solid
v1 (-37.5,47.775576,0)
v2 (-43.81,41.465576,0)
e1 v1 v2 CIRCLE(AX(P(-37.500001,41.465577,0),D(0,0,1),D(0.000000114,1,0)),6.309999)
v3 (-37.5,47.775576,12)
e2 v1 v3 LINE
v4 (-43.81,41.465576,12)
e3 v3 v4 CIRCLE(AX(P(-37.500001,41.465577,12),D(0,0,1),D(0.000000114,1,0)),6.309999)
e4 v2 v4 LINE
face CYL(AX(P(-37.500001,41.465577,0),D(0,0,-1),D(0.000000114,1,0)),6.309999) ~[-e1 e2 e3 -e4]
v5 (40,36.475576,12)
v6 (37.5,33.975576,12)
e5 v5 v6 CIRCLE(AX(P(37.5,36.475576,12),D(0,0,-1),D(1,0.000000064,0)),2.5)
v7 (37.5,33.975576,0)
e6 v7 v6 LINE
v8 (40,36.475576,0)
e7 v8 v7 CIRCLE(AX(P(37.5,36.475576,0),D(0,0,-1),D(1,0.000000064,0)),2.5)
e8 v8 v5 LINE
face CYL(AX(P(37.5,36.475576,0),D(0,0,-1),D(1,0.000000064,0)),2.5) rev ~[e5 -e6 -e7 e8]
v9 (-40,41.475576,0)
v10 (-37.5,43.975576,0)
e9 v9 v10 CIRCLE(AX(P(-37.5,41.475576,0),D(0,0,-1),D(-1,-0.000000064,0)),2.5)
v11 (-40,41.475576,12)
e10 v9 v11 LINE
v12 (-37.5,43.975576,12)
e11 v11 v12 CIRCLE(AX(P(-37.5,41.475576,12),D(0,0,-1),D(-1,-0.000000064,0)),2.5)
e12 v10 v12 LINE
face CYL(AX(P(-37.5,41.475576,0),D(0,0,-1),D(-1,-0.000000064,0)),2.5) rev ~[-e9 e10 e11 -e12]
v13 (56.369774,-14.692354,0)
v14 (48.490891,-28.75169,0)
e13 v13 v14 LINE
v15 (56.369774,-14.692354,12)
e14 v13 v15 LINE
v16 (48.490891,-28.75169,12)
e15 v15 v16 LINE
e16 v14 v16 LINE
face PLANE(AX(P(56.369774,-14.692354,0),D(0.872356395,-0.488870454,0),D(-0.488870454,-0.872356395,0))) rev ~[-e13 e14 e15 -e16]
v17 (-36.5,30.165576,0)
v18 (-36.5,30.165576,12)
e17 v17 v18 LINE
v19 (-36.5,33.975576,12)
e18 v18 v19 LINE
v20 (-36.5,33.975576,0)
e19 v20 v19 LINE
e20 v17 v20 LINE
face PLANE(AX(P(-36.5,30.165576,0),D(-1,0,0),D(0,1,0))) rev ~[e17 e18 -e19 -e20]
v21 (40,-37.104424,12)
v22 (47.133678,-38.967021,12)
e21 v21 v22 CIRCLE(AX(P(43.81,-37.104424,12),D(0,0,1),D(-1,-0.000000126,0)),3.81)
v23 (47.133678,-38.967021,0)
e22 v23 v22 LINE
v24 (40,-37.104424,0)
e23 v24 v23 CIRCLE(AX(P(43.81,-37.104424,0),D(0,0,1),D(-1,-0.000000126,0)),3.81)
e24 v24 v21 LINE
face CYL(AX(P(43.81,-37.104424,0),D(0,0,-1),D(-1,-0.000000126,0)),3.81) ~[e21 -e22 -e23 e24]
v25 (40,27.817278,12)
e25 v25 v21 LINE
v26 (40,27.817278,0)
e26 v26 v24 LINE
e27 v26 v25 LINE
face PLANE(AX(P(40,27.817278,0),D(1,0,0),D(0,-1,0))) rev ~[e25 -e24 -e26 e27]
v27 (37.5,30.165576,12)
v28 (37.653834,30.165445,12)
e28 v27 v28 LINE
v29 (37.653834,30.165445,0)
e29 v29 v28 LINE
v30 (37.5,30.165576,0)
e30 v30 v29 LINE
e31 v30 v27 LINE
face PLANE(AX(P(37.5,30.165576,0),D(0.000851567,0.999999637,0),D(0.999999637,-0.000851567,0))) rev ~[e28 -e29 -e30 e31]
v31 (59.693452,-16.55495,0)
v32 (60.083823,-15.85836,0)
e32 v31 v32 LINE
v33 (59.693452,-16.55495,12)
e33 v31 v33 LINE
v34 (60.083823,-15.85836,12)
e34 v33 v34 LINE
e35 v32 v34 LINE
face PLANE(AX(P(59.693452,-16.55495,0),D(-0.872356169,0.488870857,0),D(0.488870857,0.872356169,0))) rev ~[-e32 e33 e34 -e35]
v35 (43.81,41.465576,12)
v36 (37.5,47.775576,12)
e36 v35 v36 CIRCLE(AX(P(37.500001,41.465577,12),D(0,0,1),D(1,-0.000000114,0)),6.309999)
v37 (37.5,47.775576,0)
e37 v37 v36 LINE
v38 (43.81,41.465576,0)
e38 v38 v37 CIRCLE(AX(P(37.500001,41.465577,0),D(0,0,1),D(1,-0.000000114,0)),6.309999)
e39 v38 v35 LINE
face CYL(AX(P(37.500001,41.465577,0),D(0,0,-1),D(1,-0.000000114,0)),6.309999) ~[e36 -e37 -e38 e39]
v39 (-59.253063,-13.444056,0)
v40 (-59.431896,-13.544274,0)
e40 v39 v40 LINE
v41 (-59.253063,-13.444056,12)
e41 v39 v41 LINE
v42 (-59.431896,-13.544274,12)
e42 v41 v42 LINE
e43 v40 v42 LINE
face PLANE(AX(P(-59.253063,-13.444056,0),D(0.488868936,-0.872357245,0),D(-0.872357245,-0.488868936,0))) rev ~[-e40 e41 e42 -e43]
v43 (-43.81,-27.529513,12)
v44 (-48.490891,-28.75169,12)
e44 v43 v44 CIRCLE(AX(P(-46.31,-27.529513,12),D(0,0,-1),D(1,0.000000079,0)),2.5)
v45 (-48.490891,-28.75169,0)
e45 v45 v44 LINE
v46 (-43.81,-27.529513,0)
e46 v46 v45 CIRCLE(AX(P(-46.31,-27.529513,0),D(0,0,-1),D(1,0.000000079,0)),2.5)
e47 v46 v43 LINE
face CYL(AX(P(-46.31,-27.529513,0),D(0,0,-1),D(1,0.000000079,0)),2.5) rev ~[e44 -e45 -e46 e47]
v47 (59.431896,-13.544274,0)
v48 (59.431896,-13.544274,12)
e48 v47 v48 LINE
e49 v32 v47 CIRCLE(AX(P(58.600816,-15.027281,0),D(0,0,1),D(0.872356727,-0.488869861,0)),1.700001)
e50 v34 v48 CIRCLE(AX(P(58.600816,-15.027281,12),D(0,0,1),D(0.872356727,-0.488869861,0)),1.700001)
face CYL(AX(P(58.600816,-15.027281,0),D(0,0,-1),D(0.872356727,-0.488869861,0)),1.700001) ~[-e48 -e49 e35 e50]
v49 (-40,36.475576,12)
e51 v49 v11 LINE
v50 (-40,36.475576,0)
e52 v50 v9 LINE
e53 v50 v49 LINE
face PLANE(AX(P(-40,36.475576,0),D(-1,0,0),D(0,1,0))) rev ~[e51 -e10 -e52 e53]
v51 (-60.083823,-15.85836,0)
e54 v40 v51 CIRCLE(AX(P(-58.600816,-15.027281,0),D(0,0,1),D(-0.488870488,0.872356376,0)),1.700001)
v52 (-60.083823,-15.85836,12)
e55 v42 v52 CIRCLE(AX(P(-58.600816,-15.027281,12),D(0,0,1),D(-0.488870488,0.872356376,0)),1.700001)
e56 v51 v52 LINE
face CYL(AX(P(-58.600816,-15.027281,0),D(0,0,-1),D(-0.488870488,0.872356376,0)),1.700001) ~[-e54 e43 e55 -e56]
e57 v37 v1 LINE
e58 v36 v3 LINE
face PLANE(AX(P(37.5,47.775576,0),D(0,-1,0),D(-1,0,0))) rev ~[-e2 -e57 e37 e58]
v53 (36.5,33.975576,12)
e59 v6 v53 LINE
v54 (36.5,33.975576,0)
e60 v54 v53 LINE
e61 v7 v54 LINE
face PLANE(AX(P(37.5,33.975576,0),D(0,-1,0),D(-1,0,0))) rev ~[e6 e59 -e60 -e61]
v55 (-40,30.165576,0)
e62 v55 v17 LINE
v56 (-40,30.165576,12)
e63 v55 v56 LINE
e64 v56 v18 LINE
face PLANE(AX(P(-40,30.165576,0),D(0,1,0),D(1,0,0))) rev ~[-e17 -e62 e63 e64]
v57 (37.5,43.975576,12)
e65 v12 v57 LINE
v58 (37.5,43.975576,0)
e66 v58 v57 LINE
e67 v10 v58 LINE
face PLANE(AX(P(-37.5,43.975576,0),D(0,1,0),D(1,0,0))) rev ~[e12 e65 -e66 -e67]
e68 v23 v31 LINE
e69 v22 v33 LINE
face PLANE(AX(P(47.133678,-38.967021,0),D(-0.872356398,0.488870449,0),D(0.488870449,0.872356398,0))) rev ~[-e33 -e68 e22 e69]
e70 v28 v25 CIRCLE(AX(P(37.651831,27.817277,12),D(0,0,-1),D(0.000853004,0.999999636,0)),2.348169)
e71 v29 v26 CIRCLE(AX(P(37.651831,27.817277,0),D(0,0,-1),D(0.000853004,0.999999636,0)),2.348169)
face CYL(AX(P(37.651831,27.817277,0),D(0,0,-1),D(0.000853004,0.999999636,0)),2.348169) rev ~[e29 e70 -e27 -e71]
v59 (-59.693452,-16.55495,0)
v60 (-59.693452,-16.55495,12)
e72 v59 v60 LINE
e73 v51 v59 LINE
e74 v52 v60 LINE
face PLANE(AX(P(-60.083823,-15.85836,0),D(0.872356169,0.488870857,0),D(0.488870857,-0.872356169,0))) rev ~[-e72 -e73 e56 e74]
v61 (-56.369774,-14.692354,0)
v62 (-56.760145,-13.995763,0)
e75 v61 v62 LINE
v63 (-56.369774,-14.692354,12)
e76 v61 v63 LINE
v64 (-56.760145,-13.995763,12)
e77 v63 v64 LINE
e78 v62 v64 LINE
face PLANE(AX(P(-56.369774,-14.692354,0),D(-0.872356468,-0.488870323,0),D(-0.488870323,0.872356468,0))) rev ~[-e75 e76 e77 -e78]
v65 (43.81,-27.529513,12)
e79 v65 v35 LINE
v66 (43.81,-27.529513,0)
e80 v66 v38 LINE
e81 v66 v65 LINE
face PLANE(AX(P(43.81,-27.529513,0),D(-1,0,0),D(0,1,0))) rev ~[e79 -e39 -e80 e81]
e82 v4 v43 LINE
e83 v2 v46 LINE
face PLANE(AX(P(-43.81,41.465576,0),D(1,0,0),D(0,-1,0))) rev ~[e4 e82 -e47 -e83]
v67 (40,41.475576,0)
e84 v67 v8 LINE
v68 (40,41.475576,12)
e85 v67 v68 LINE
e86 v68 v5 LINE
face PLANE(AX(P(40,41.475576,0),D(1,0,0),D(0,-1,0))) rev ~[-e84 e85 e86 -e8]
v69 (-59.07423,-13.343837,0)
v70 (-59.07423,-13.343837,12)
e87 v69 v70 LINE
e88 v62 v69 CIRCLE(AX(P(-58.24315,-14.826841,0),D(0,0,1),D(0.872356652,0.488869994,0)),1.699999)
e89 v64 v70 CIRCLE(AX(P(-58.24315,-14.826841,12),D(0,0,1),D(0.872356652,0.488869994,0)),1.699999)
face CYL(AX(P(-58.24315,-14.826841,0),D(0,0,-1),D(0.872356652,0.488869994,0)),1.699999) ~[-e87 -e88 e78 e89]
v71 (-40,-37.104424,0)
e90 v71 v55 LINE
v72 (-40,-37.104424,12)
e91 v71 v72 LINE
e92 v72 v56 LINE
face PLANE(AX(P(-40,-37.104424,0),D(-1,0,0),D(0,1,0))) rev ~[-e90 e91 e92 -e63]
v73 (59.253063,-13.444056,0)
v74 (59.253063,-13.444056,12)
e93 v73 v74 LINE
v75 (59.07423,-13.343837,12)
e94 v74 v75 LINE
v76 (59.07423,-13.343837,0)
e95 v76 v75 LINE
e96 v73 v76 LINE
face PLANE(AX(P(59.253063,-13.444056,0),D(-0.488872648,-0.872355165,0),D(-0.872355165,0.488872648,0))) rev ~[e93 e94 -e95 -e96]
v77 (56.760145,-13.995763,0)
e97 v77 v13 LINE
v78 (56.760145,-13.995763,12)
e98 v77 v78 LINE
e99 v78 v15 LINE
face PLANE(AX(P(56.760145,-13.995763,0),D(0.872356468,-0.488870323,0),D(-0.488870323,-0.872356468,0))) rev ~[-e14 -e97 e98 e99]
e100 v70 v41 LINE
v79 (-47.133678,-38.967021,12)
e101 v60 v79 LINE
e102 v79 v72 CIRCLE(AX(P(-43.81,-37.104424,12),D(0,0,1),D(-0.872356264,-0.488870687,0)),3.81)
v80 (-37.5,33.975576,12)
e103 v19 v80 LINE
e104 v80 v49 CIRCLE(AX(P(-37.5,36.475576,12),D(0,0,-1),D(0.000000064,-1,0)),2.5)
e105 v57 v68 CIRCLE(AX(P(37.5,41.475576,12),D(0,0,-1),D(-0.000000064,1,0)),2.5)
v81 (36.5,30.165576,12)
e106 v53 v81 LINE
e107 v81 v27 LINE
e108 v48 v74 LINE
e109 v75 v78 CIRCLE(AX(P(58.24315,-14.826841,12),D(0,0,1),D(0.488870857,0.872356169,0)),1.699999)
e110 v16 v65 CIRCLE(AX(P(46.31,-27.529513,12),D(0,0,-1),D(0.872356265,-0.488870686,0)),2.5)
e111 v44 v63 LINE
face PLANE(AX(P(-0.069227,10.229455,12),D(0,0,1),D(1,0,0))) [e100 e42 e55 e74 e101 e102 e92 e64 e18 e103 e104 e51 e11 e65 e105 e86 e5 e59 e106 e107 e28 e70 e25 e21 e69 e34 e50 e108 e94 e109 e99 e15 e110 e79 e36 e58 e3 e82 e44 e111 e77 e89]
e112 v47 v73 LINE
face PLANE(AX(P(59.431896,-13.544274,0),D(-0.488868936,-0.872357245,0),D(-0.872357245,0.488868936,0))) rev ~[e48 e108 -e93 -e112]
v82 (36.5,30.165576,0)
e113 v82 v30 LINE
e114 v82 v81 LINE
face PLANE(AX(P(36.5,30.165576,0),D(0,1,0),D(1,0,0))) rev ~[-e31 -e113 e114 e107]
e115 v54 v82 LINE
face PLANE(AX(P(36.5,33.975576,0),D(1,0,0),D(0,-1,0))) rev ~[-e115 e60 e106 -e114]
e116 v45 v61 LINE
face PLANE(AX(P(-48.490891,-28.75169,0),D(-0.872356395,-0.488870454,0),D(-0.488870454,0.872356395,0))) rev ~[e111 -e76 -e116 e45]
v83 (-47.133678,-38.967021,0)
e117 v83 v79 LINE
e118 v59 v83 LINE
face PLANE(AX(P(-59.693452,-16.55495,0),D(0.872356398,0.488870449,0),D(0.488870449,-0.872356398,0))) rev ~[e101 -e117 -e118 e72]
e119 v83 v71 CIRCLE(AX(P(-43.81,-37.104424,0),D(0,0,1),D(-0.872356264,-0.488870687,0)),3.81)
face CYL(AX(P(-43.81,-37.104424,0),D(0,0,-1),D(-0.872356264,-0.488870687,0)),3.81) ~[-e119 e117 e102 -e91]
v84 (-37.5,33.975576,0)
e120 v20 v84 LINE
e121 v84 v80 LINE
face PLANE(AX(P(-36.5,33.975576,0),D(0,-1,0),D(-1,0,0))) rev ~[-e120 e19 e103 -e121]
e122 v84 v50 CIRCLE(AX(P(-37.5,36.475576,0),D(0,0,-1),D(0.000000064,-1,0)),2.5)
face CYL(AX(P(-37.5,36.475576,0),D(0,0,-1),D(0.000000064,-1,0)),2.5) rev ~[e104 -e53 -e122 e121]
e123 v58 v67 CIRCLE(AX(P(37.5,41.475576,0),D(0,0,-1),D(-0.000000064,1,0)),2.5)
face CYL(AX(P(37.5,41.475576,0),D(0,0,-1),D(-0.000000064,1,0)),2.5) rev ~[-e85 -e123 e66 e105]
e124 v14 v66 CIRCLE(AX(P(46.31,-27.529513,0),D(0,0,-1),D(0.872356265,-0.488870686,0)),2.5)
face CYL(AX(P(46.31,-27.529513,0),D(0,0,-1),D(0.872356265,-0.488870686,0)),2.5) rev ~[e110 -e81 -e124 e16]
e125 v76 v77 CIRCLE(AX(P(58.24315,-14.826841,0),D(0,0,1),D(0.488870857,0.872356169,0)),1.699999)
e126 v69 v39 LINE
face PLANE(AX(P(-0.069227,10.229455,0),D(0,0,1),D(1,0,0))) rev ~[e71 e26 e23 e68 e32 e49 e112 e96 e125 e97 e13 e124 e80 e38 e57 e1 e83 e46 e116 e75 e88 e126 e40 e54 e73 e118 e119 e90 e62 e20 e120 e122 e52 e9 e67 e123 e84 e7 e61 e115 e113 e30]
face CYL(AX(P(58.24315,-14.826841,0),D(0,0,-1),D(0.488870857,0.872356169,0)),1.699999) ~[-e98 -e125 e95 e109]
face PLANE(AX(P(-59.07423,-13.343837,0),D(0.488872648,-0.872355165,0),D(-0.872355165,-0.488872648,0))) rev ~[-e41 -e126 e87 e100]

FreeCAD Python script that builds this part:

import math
import FreeCAD as App
import Part
import Sketcher
from FreeCAD import Vector

doc = App.newDocument("Part")
body = doc.addObject("PartDesign::Body", "Body")

# Sketch on XY plane
sketch1 = body.newObject("Sketcher::SketchObject", "Sketch")
sketch1.AttachmentSupport = (doc.getObject("XY_Plane"), [""])
sketch1.MapMode = "FlatFace"
sketch1.addGeometry(Part.ArcOfCircle(Part.Circle(Vector(-37.5, 41.48, 0), Vector(0, 0, 1), 2.5), math.radians(90), math.radians(180)), False)
sketch1.addGeometry(Part.LineSegment(Vector(-37.5, 43.98, 0), Vector(37.5, 43.98, 0)), False)
sketch1.addGeometry(Part.ArcOfCircle(Part.Circle(Vector(37.5, 41.48, 0), Vector(0, 0, 1), 2.5), math.radians(0), math.radians(90)), False)
sketch1.addGeometry(Part.LineSegment(Vector(40, 41.48, 0), Vector(40, 36.48, 0)), False)
sketch1.addGeometry(Part.ArcOfCircle(Part.Circle(Vector(37.5, 36.48, 0), Vector(0, 0, 1), 2.5), math.radians(-90), math.radians(0)), False)
sketch1.addGeometry(Part.LineSegment(Vector(37.5, 33.98, 0), Vector(36.5, 33.98, 0)), False)
sketch1.addGeometry(Part.LineSegment(Vector(36.5, 33.98, 0), Vector(36.5, 30.17, 0)), False)
sketch1.addGeometry(Part.LineSegment(Vector(36.5, 30.17, 0), Vector(37.5, 30.17, 0)), False)
sketch1.addGeometry(Part.LineSegment(Vector(37.5, 30.17, 0), Vector(37.65, 30.17, 0)), False)
sketch1.addGeometry(Part.ArcOfCircle(Part.Circle(Vector(37.65, 27.82, 0), Vector(0, 0, 1), 2.35), math.radians(0), math.radians(90)), False)
sketch1.addGeometry(Part.LineSegment(Vector(40, 27.82, 0), Vector(40, -37.1, 0)), False)
sketch1.addGeometry(Part.ArcOfCircle(Part.Circle(Vector(43.81, -37.1, 0), Vector(0, 0, 1), 3.81), math.radians(-180), math.radians(-29)), False)
sketch1.addGeometry(Part.LineSegment(Vector(47.13, -38.97, 0), Vector(59.69, -16.55, 0)), False)
sketch1.addGeometry(Part.LineSegment(Vector(59.69, -16.55, 0), Vector(60.08, -15.86, 0)), False)
sketch1.addGeometry(Part.ArcOfCircle(Part.Circle(Vector(58.6, -15.03, 0), Vector(0, 0, 1), 1.7), math.radians(-29), math.radians(61)), False)
sketch1.addGeometry(Part.LineSegment(Vector(59.43, -13.54, 0), Vector(59.25, -13.44, 0)), False)
sketch1.addGeometry(Part.LineSegment(Vector(59.25, -13.44, 0), Vector(59.07, -13.34, 0)), False)
sketch1.addGeometry(Part.ArcOfCircle(Part.Circle(Vector(58.24, -14.83, 0), Vector(0, 0, 1), 1.7), math.radians(61), math.radians(151)), False)
sketch1.addGeometry(Part.LineSegment(Vector(56.76, -14, 0), Vector(56.37, -14.69, 0)), False)
sketch1.addGeometry(Part.LineSegment(Vector(56.37, -14.69, 0), Vector(48.49, -28.75, 0)), False)
sketch1.addGeometry(Part.ArcOfCircle(Part.Circle(Vector(46.31, -27.53, 0), Vector(0, 0, 1), 2.5), math.radians(180), math.radians(331)), False)
sketch1.addGeometry(Part.LineSegment(Vector(43.81, -27.53, 0), Vector(43.81, 41.47, 0)), False)
sketch1.addGeometry(Part.ArcOfCircle(Part.Circle(Vector(37.5, 41.47, 0), Vector(0, 0, 1), 6.31), math.radians(0), math.radians(90)), False)
sketch1.addGeometry(Part.LineSegment(Vector(37.5, 47.78, 0), Vector(-37.5, 47.78, 0)), False)
sketch1.addGeometry(Part.ArcOfCircle(Part.Circle(Vector(-37.5, 41.47, 0), Vector(0, 0, 1), 6.31), math.radians(90), math.radians(180)), False)
sketch1.addGeometry(Part.LineSegment(Vector(-43.81, 41.47, 0), Vector(-43.81, -27.53, 0)), False)
sketch1.addGeometry(Part.ArcOfCircle(Part.Circle(Vector(-46.31, -27.53, 0), Vector(0, 0, 1), 2.5), math.radians(-151), math.radians(0)), False)
sketch1.addGeometry(Part.LineSegment(Vector(-48.49, -28.75, 0), Vector(-56.37, -14.69, 0)), False)
sketch1.addGeometry(Part.LineSegment(Vector(-56.37, -14.69, 0), Vector(-56.76, -14, 0)), False)
sketch1.addGeometry(Part.ArcOfCircle(Part.Circle(Vector(-58.24, -14.83, 0), Vector(0, 0, 1), 1.7), math.radians(29), math.radians(119)), False)
sketch1.addGeometry(Part.LineSegment(Vector(-59.07, -13.34, 0), Vector(-59.25, -13.44, 0)), False)
sketch1.addGeometry(Part.LineSegment(Vector(-59.25, -13.44, 0), Vector(-59.43, -13.54, 0)), False)
sketch1.addGeometry(Part.ArcOfCircle(Part.Circle(Vector(-58.6, -15.03, 0), Vector(0, 0, 1), 1.7), math.radians(119), math.radians(209)), False)
sketch1.addGeometry(Part.LineSegment(Vector(-60.08, -15.86, 0), Vector(-59.69, -16.55, 0)), False)
sketch1.addGeometry(Part.LineSegment(Vector(-59.69, -16.55, 0), Vector(-47.13, -38.97, 0)), False)
sketch1.addGeometry(Part.ArcOfCircle(Part.Circle(Vector(-43.81, -37.1, 0), Vector(0, 0, 1), 3.81), math.radians(-151), math.radians(0)), False)
sketch1.addGeometry(Part.LineSegment(Vector(-40, -37.1, 0), Vector(-40, 30.17, 0)), False)
sketch1.addGeometry(Part.LineSegment(Vector(-40, 30.17, 0), Vector(-36.5, 30.17, 0)), False)
sketch1.addGeometry(Part.LineSegment(Vector(-36.5, 30.17, 0), Vector(-36.5, 33.98, 0)), False)
sketch1.addGeometry(Part.LineSegment(Vector(-36.5, 33.98, 0), Vector(-37.5, 33.98, 0)), False)
sketch1.addGeometry(Part.ArcOfCircle(Part.Circle(Vector(-37.5, 36.48, 0), Vector(0, 0, 1), 2.5), math.radians(180), math.radians(270)), False)
sketch1.addGeometry(Part.LineSegment(Vector(-40, 36.48, 0), Vector(-40, 41.48, 0)), False)
sketch1.addConstraint(Sketcher.Constraint("Tangent", 0, 1, 1, 1))
sketch1.addConstraint(Sketcher.Constraint("Tangent", 1, 2, 2, 2))
sketch1.addConstraint(Sketcher.Constraint("Tangent", 2, 1, 3, 1))
sketch1.addConstraint(Sketcher.Constraint("Tangent", 3, 2, 4, 2))
sketch1.addConstraint(Sketcher.Constraint("Tangent", 4, 1, 5, 1))
sketch1.addConstraint(Sketcher.Constraint("Coincident", 5, 2, 6, 1))
sketch1.addConstraint(Sketcher.Constraint("Coincident", 6, 2, 7, 1))
sketch1.addConstraint(Sketcher.Constraint("Coincident", 7, 2, 8, 1))
sketch1.addConstraint(Sketcher.Constraint("Tangent", 8, 2, 9, 2))
sketch1.addConstraint(Sketcher.Constraint("Tangent", 9, 1, 10, 1))
sketch1.addConstraint(Sketcher.Constraint("Tangent", 10, 2, 11, 1))
sketch1.addConstraint(Sketcher.Constraint("Tangent", 11, 2, 12, 1))
sketch1.addConstraint(Sketcher.Constraint("Coincident", 12, 2, 13, 1))
sketch1.addConstraint(Sketcher.Constraint("Tangent", 13, 2, 14, 1))
sketch1.addConstraint(Sketcher.Constraint("Tangent", 14, 2, 15, 1))
sketch1.addConstraint(Sketcher.Constraint("Coincident", 15, 2, 16, 1))
sketch1.addConstraint(Sketcher.Constraint("Coincident", 16, 2, 17, 1))
sketch1.addConstraint(Sketcher.Constraint("Tangent", 17, 2, 18, 1))
sketch1.addConstraint(Sketcher.Constraint("Coincident", 18, 2, 19, 1))
sketch1.addConstraint(Sketcher.Constraint("Tangent", 19, 2, 20, 2))
sketch1.addConstraint(Sketcher.Constraint("Tangent", 20, 1, 21, 1))
sketch1.addConstraint(Sketcher.Constraint("Tangent", 21, 2, 22, 1))
sketch1.addConstraint(Sketcher.Constraint("Tangent", 22, 2, 23, 1))
sketch1.addConstraint(Sketcher.Constraint("Tangent", 23, 2, 24, 1))
sketch1.addConstraint(Sketcher.Constraint("Tangent", 24, 2, 25, 1))
sketch1.addConstraint(Sketcher.Constraint("Tangent", 25, 2, 26, 2))
sketch1.addConstraint(Sketcher.Constraint("Tangent", 26, 1, 27, 1))
sketch1.addConstraint(Sketcher.Constraint("Coincident", 27, 2, 28, 1))
sketch1.addConstraint(Sketcher.Constraint("Tangent", 28, 2, 29, 1))
sketch1.addConstraint(Sketcher.Constraint("Coincident", 29, 2, 30, 1))
sketch1.addConstraint(Sketcher.Constraint("Coincident", 30, 2, 31, 1))
sketch1.addConstraint(Sketcher.Constraint("Tangent", 31, 2, 32, 1))
sketch1.addConstraint(Sketcher.Constraint("Tangent", 32, 2, 33, 1))
sketch1.addConstraint(Sketcher.Constraint("Coincident", 33, 2, 34, 1))
sketch1.addConstraint(Sketcher.Constraint("Tangent", 34, 2, 35, 1))
sketch1.addConstraint(Sketcher.Constraint("Tangent", 35, 2, 36, 1))
sketch1.addConstraint(Sketcher.Constraint("Coincident", 36, 2, 37, 1))
sketch1.addConstraint(Sketcher.Constraint("Coincident", 37, 2, 38, 1))
sketch1.addConstraint(Sketcher.Constraint("Coincident", 38, 2, 39, 1))
sketch1.addConstraint(Sketcher.Constraint("Tangent", 39, 2, 40, 2))
sketch1.addConstraint(Sketcher.Constraint("Tangent", 40, 1, 41, 1))
sketch1.addConstraint(Sketcher.Constraint("Tangent", 41, 2, 0, 2))
sketch1.addConstraint(Sketcher.Constraint("Horizontal", 1))
sketch1.addConstraint(Sketcher.Constraint("Vertical", 3))
sketch1.addConstraint(Sketcher.Constraint("Horizontal", 5))
sketch1.addConstraint(Sketcher.Constraint("Vertical", 6))
sketch1.addConstraint(Sketcher.Constraint("Horizontal", 7))
sketch1.addConstraint(Sketcher.Constraint("Vertical", 10))
sketch1.addConstraint(Sketcher.Constraint("Vertical", 21))
sketch1.addConstraint(Sketcher.Constraint("Horizontal", 23))
sketch1.addConstraint(Sketcher.Constraint("Vertical", 25))
sketch1.addConstraint(Sketcher.Constraint("Vertical", 36))
sketch1.addConstraint(Sketcher.Constraint("Horizontal", 37))
sketch1.addConstraint(Sketcher.Constraint("Vertical", 38))
sketch1.addConstraint(Sketcher.Constraint("Horizontal", 39))
sketch1.addConstraint(Sketcher.Constraint("Vertical", 41))
sketch1.addConstraint(Sketcher.Constraint("Equal", 0, 2))
sketch1.addConstraint(Sketcher.Constraint("Equal", 2, 4))
sketch1.addConstraint(Sketcher.Constraint("Equal", 4, 20))
sketch1.addConstraint(Sketcher.Constraint("Equal", 22, 24))
sketch1.addConstraint(Sketcher.Constraint("Equal", 20, 26))
sketch1.addConstraint(Sketcher.Constraint("Equal", 17, 29))
sketch1.addConstraint(Sketcher.Constraint("Equal", 14, 32))
sketch1.addConstraint(Sketcher.Constraint("Equal", 11, 35))
sketch1.addConstraint(Sketcher.Constraint("Equal", 26, 40))
sketch1.addConstraint(Sketcher.Constraint("Symmetric", 20, 3, 26, 3, -2))
sketch1.addConstraint(Sketcher.Constraint("Symmetric", 17, 3, 29, 3, -2))
sketch1.addConstraint(Sketcher.Constraint("Symmetric", 14, 3, 32, 3, -2))
sketch1.addConstraint(Sketcher.Constraint("Symmetric", 11, 3, 35, 3, -2))
sketch1.addConstraint(Sketcher.Constraint("Symmetric", 4, 3, 40, 3, -2))
sketch1.addConstraint(Sketcher.Constraint("Symmetric", 18, 2, 27, 2, -2))
sketch1.addConstraint(Sketcher.Constraint("Symmetric", 15, 2, 30, 2, -2))
sketch1.addConstraint(Sketcher.Constraint("Symmetric", 12, 2, 33, 2, -2))
sketch1.addConstraint(Sketcher.Constraint("Symmetric", 6, 2, 37, 2, -2))
sketch1.addConstraint(Sketcher.Constraint("Parallel", 12, 13))
sketch1.addConstraint(Sketcher.Constraint("Perpendicular", 12, 15))
sketch1.addConstraint(Sketcher.Constraint("Perpendicular", 15, 18))
sketch1.addConstraint(Sketcher.Constraint("Parallel", 18, 19))
sketch1.addConstraint(Sketcher.Constraint("Horizontal", 16, 2, 29, 2))
sketch1.addConstraint(Sketcher.Constraint("Vertical", 4, 3, 22, 3))
sketch1.addConstraint(Sketcher.Constraint("Vertical", 4, 1, 7, 2))
sketch1.addConstraint(Sketcher.Constraint("Vertical", 3, 2, 9, 1))
sketch1.addConstraint(Sketcher.Constraint("Vertical", 11, 3, 20, 1))
sketch1.addConstraint(Sketcher.Constraint("Equal", 15, 16))
sketch1.addConstraint(Sketcher.Constraint("Equal", 13, 18))
sketch1.addConstraint(Sketcher.Constraint("Radius", 0, 2.5))
sketch1.addConstraint(Sketcher.Constraint("Radius", 14, 1.700001))
sketch1.addConstraint(Sketcher.Constraint("Radius", 17, 1.699999))
sketch1.addConstraint(Sketcher.Constraint("DistanceX", 1, 1, 1, 2, 75.0))
sketch1.addConstraint(Sketcher.Constraint("DistanceX", 5, 2, 5, 1, 1.0))
sketch1.addConstraint(Sketcher.Constraint("DistanceY", 3, 2, 3, 1, 5.0))
sketch1.addConstraint(Sketcher.Constraint("Radius", 11, 3.81))
sketch1.addConstraint(Sketcher.Constraint("DistanceY", 6, 2, 6, 1, 3.81))
sketch1.addConstraint(Sketcher.Constraint("DistanceY", 36, 1, 36, 2, 67.27))
sketch1.addConstraint(Sketcher.Constraint("DistanceY", 1, 2, 22, 2, 3.8))
sketch1.addConstraint(Sketcher.Constraint("Radius", 9, 2.348169))
sketch1.addConstraint(Sketcher.Constraint("Distance", 15, 0.205))
sketch1.addConstraint(Sketcher.Constraint("DistanceY", 21, 1, 21, 2, 68.995089))
sketch1.addConstraint(Sketcher.Constraint("DistanceY", 9, 3, 4, 3, 8.658299))
sketch1.addConstraint(Sketcher.Constraint("DistanceX", 17, 3, 12, 2, 1.450302))
sketch1.addConstraint(Sketcher.Constraint("DistanceY", 18, 2, 15, 2, 1.248298))
sketch1.addConstraint(Sketcher.Constraint("DistanceY", 14, 3, -1, 1, 15.027281))
sketch1.addConstraint(Sketcher.Constraint("DistanceX", -1, 1, 17, 3, 58.24315))
sketch1.addConstraint(Sketcher.Constraint("DistanceY", 17, 3, -1, 1, 14.826841))
pad1 = body.newObject("PartDesign::Pad", "Pad")
pad1.Profile = sketch1
pad1.Length = 12

doc.recompute()
